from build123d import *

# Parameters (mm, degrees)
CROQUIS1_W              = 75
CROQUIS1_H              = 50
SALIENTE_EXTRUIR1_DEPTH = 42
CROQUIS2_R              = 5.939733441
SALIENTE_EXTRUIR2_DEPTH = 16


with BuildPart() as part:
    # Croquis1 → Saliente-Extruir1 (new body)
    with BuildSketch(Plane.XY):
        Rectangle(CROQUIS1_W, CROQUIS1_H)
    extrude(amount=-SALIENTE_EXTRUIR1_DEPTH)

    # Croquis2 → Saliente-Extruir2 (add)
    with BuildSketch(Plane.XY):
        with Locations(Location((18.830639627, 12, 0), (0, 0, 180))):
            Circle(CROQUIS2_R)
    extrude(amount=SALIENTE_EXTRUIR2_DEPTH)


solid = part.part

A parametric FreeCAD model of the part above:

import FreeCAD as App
import Part
import Sketcher

V = App.Vector

doc = App.newDocument("Part")
params = doc.addObject("Spreadsheet::Sheet", "Params")
for row, (alias, value) in enumerate([
    ("sketch1_width", "75 mm"),
    ("sketch1_height", "50 mm"),
    ("pad1_length", "42 mm"),
    ("pad2_length", "16 mm"),
], start=1):
    params.set(f"A{row}", alias)
    params.set(f"B{row}", "=" + value)
    params.setAlias(f"B{row}", alias)

body = doc.addObject("PartDesign::Body", "Body")

sketch1 = body.newObject("Sketcher::SketchObject", "Sketch")
sketch1.AttachmentSupport = (doc.getObject("XY_Plane"), [""])
sketch1.MapMode = "FlatFace"
sketch1.addGeometry(Part.LineSegment(V(-38, 25, 0), V(-38, -25, 0)), False)
sketch1.addGeometry(Part.LineSegment(V(-38, -25, 0), V(38, -25, 0)), False)
sketch1.addGeometry(Part.LineSegment(V(38, -25, 0), V(38, 25, 0)), False)
sketch1.addGeometry(Part.LineSegment(V(38, 25, 0), V(-38, 25, 0)), False)
sketch1.addConstraint(Sketcher.Constraint("Coincident", 0, 2, 1, 1))
sketch1.addConstraint(Sketcher.Constraint("Coincident", 1, 2, 2, 1))
sketch1.addConstraint(Sketcher.Constraint("Coincident", 2, 2, 3, 1))
sketch1.addConstraint(Sketcher.Constraint("Coincident", 3, 2, 0, 1))
sketch1.addConstraint(Sketcher.Constraint("Vertical", 0))
sketch1.addConstraint(Sketcher.Constraint("Horizontal", 1))
sketch1.addConstraint(Sketcher.Constraint("Vertical", 2))
sketch1.addConstraint(Sketcher.Constraint("Horizontal", 3))
sketch1.addConstraint(Sketcher.Constraint("Symmetric", 0, 2, 2, 2, -1, 1))
sketch1.addConstraint(Sketcher.Constraint("DistanceX", 1, 1, 1, 2, 75.0))
sketch1.addConstraint(Sketcher.Constraint("DistanceY", 0, 2, 0, 1, 50.0))
sketch1.setExpression("Constraints[9]", "Params.sketch1_width")
sketch1.setExpression("Constraints[10]", "Params.sketch1_height")
pad1 = body.newObject("PartDesign::Pad", "Pad")
pad1.Profile = sketch1
pad1.setExpression("Length", "Params.pad1_length")
pad1.Reversed = True

sketch2 = body.newObject("Sketcher::SketchObject", "Sketch001")
sketch2.AttachmentSupport = (doc.getObject("XY_Plane"), [""])
sketch2.MapMode = "FlatFace"
sketch2.addGeometry(Part.Circle(V(19, 12, 0), V(0, 0, 1), 6), False)
sketch2.addConstraint(Sketcher.Constraint("DistanceY", -1, 1, 0, 3, 12.0))
sketch2.addConstraint(Sketcher.Constraint("Diameter", 0, 11.879467))
sketch2.addConstraint(Sketcher.Constraint("DistanceX", -1, 1, 0, 3, 18.83064))
pad2 = body.newObject("PartDesign::Pad", "Pad001")
pad2.Profile = sketch2
pad2.setExpression("Length", "Params.pad2_length")

doc.recompute()
